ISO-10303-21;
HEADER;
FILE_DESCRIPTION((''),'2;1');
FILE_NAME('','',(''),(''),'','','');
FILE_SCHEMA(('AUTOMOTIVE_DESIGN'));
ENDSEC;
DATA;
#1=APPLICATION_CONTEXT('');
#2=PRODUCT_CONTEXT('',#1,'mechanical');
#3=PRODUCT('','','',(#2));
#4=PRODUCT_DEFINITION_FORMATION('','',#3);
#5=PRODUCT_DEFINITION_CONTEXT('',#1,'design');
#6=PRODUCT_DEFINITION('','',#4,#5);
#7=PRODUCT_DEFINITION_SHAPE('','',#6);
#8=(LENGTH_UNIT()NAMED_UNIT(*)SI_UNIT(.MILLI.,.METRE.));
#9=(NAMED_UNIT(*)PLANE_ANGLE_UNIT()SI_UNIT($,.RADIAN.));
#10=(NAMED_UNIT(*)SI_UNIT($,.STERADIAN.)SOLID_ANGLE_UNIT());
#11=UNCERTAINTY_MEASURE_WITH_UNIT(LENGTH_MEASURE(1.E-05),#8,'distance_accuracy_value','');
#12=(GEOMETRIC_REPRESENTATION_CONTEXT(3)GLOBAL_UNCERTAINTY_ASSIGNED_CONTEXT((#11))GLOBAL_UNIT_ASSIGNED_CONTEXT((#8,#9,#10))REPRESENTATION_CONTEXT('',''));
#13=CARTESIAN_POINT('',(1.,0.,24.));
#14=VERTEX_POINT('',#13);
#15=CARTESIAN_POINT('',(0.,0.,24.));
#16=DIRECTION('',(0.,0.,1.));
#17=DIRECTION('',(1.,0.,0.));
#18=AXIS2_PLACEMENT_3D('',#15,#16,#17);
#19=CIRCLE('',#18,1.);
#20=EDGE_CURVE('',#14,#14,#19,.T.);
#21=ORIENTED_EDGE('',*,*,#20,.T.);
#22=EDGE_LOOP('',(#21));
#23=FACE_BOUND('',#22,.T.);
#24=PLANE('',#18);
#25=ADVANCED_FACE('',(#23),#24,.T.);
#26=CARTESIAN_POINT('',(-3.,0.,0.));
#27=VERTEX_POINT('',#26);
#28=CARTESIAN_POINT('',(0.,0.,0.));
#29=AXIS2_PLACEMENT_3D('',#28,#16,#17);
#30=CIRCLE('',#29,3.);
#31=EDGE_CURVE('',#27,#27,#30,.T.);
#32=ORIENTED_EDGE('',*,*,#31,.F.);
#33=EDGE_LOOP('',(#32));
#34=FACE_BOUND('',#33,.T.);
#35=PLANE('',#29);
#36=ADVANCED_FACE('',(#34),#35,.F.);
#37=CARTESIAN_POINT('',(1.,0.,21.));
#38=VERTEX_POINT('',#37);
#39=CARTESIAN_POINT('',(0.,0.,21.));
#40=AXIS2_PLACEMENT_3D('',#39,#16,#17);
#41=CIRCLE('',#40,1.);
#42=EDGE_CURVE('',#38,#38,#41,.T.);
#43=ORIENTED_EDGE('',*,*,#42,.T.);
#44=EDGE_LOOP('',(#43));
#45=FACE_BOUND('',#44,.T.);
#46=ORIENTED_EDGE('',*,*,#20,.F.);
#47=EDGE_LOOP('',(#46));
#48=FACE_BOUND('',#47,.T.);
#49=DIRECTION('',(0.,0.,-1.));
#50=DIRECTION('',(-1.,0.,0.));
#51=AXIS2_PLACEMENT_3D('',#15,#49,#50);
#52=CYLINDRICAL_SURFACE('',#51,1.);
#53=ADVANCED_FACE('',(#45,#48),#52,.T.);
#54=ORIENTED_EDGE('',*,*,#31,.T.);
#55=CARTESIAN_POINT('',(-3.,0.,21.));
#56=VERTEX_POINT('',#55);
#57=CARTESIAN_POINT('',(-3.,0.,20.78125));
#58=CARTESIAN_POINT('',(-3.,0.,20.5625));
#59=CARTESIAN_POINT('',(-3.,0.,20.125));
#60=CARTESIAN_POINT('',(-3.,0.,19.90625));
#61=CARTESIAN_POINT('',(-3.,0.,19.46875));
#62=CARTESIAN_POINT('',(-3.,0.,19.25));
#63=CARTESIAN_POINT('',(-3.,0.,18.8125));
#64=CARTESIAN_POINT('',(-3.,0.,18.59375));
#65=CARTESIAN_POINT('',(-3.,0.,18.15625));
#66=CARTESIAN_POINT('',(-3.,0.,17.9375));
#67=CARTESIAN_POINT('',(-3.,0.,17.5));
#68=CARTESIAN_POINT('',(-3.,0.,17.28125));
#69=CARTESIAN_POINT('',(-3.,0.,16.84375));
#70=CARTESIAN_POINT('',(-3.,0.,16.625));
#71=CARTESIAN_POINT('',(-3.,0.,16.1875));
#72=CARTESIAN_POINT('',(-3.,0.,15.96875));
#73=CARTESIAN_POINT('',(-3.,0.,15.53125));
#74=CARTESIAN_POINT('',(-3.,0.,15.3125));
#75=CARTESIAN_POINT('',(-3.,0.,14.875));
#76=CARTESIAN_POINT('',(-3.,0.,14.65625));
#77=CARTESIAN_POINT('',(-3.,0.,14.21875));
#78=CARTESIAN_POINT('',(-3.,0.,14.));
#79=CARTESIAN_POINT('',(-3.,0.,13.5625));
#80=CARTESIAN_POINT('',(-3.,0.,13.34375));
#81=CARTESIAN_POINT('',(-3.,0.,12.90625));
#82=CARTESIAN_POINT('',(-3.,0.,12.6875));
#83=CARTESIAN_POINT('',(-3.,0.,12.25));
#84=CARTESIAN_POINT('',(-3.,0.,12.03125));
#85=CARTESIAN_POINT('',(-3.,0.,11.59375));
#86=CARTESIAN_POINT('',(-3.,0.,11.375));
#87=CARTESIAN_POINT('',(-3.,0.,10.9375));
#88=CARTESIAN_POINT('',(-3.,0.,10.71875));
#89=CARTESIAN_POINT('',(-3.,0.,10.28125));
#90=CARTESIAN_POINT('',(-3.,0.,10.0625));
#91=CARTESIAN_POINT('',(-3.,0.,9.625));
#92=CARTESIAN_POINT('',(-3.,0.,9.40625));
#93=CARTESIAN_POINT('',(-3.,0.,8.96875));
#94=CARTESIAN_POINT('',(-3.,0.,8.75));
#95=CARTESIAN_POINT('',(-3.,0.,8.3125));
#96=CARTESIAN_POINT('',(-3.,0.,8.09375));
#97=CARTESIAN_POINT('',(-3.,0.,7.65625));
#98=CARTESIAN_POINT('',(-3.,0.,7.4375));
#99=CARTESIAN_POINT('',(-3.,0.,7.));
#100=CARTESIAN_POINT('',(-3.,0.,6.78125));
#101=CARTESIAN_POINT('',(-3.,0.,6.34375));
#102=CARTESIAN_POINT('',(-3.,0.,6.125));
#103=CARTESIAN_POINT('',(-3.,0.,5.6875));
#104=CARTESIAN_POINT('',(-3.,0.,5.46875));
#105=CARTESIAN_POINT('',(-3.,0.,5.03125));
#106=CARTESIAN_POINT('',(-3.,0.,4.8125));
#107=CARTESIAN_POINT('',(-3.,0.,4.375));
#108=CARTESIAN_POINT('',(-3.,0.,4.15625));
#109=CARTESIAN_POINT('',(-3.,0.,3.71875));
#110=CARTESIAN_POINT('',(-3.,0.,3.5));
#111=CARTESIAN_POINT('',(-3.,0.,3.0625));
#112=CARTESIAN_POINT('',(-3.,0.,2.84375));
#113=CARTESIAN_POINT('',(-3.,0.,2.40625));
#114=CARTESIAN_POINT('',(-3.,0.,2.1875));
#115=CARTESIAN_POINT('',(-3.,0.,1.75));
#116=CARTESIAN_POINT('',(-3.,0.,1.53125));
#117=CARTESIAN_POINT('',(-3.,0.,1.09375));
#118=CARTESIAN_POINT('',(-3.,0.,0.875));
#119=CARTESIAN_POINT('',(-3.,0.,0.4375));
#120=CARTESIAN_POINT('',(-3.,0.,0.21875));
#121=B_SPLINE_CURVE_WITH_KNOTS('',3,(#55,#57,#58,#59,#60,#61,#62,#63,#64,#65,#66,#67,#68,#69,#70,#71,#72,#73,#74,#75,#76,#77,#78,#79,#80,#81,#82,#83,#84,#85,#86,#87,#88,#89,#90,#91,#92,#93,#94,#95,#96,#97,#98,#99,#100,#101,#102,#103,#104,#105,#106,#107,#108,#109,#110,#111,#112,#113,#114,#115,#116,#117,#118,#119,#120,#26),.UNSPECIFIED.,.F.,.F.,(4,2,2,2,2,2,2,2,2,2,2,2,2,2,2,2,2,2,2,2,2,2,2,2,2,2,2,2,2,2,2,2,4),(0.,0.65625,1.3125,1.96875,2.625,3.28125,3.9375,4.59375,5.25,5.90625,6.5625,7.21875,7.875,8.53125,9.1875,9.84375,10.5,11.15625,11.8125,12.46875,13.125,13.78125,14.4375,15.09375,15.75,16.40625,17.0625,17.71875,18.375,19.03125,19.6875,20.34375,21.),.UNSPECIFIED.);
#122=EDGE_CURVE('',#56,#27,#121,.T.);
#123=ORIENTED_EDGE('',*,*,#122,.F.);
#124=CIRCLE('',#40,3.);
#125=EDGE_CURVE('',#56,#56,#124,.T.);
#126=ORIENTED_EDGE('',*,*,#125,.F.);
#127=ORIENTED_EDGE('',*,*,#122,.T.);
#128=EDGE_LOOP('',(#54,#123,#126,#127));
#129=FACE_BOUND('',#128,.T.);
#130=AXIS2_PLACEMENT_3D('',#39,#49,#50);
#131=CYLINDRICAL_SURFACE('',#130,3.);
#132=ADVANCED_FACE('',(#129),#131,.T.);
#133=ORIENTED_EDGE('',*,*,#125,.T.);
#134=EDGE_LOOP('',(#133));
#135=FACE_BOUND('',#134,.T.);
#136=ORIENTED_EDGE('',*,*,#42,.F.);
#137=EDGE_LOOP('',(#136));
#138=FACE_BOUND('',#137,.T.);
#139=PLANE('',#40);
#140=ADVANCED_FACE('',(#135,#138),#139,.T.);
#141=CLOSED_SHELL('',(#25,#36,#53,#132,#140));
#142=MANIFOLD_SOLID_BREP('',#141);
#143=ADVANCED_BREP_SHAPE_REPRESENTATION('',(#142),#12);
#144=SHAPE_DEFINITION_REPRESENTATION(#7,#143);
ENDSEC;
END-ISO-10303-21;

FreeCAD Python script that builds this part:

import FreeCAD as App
import Part
import Sketcher
from FreeCAD import Vector
Q = App.Units.Quantity

doc = App.newDocument("Part")
body = doc.addObject("PartDesign::Body", "Body")

sketch1 = body.newObject("Sketcher::SketchObject", "Sketch")
sketch1.AttachmentSupport = (doc.getObject("XY_Plane"), [""])
sketch1.MapMode = "FlatFace"
sketch1.addGeometry(Part.Circle(Vector(0, 0, 0), Vector(0, 0, 1), 3), False)
sketch1.addConstraint([
    Sketcher.Constraint("Coincident", 0, 3, -1, 1),
    Sketcher.Constraint("Diameter", 0, Q("6 mm")),
])
pad1 = body.newObject("PartDesign::Pad", "Pad")
pad1.Profile = sketch1
pad1.Length = 21

sketch2 = body.newObject("Sketcher::SketchObject", "Sketch001")
sketch2.AttachmentSupport = (doc.getObject("XY_Plane"), [""])
sketch2.MapMode = "FlatFace"
sketch2.AttachmentOffset = App.Placement(Vector(0, 0, 21), App.Rotation())
sketch2.addGeometry(Part.Circle(Vector(0, 0, 0), Vector(0, 0, 1), 1), False)
sketch2.addConstraint([
    Sketcher.Constraint("Coincident", 0, 3, -1, 1),
    Sketcher.Constraint("Diameter", 0, Q("2 mm")),
])
pad2 = body.newObject("PartDesign::Pad", "Pad001")
pad2.Profile = sketch2
pad2.Length = 3

doc.recompute()
